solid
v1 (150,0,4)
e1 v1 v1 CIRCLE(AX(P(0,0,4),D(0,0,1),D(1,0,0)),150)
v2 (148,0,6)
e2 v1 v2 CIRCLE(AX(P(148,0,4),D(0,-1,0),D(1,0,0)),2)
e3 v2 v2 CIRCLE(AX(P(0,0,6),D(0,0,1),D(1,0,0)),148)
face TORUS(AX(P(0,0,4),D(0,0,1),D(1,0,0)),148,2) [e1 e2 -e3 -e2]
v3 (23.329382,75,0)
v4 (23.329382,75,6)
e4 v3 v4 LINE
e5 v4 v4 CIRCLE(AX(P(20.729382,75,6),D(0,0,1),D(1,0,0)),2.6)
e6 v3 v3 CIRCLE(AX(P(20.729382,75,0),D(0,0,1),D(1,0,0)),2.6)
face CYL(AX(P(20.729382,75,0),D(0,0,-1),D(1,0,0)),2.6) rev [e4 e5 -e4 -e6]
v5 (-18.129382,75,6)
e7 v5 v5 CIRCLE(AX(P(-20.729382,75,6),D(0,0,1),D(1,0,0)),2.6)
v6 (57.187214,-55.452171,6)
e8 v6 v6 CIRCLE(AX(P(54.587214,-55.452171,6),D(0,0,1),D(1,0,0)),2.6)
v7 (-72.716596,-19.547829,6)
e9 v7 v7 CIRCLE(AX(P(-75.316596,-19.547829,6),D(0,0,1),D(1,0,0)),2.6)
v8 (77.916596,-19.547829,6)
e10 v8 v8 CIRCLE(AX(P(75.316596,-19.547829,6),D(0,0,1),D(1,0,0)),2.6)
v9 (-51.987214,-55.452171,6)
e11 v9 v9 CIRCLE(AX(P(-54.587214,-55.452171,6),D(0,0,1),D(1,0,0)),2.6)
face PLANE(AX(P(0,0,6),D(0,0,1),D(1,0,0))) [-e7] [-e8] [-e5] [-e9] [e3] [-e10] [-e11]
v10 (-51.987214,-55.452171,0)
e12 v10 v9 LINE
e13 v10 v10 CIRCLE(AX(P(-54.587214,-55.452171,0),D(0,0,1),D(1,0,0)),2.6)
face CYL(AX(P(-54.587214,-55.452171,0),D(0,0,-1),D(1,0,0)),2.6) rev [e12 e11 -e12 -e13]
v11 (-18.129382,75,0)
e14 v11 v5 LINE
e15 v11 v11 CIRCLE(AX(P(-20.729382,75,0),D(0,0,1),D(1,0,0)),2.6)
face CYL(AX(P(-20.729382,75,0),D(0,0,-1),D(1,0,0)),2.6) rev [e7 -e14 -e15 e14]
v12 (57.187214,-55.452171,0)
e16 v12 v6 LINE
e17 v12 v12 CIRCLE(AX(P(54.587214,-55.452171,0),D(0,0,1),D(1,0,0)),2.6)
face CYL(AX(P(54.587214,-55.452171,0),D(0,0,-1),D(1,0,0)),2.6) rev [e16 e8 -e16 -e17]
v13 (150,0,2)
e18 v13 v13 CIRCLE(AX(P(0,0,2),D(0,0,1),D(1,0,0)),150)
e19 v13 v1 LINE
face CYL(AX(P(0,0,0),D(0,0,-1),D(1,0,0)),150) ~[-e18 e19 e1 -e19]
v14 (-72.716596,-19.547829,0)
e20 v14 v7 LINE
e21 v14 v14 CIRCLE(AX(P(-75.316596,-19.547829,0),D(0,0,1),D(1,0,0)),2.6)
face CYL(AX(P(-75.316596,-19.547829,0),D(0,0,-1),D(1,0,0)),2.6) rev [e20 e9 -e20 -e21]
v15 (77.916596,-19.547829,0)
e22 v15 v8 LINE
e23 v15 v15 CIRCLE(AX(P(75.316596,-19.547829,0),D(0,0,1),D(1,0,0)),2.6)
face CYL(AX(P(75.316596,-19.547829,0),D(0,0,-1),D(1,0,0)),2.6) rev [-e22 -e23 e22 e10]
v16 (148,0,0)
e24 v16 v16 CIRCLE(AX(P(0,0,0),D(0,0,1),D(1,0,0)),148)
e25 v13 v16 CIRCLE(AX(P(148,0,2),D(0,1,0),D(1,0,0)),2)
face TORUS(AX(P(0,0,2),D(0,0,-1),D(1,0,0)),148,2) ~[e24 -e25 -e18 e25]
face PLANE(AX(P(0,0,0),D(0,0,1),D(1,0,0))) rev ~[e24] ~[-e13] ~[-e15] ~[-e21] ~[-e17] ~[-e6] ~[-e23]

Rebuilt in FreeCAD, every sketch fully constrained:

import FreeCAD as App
import Part
import Sketcher

V = App.Vector


def edges_at(feature, points):
    """Names of the edges that pass closest to the given points."""
    edges = feature.Shape.Edges
    near = lambda p: min(range(len(edges)), key=lambda i: edges[i].distToShape(Part.Vertex(*p))[0])
    return sorted({f"Edge{near(p) + 1}" for p in points})

doc = App.newDocument("Part")
body = doc.addObject("PartDesign::Body", "Body")

sketch1 = body.newObject("Sketcher::SketchObject", "Sketch")
sketch1.AttachmentSupport = (doc.getObject("XY_Plane"), [""])
sketch1.MapMode = "FlatFace"
sketch1.addGeometry([
    Part.Circle(V(0, 0, 0), V(0, 0, 1), 150),
    Part.Circle(V(-54.6, -55.5, 0), V(0, 0, 1), 2.6),
    Part.Circle(V(-75.3, -19.5, 0), V(0, 0, 1), 2.6),
    Part.Circle(V(54.6, -55.5, 0), V(0, 0, 1), 2.6),
    Part.Circle(V(75.3, -19.5, 0), V(0, 0, 1), 2.6),
    Part.Circle(V(-20.7, 75, 0), V(0, 0, 1), 2.6),
    Part.Circle(V(20.7, 75, 0), V(0, 0, 1), 2.6),
], False)
sketch1.addConstraint([
    Sketcher.Constraint("Coincident", 0, 3, -1, 1),
    Sketcher.Constraint("Equal", 1, 2),
    Sketcher.Constraint("Equal", 2, 3),
    Sketcher.Constraint("Equal", 3, 4),
    Sketcher.Constraint("Equal", 4, 5),
    Sketcher.Constraint("Equal", 5, 6),
    Sketcher.Constraint("Symmetric", 1, 3, 3, 3, -2),
    Sketcher.Constraint("Symmetric", 2, 3, 4, 3, -2),
    Sketcher.Constraint("Symmetric", 5, 3, 6, 3, -2),
    Sketcher.Constraint("Diameter", 0, 300.0),
    Sketcher.Constraint("Diameter", 1, 5.2),
    Sketcher.Constraint("DistanceY", -1, 1, 5, 3, 75.0),
    Sketcher.Constraint("DistanceY", 1, 3, -1, 1, 55.452171),
    Sketcher.Constraint("DistanceY", 2, 3, -1, 1, 19.547829),
    Sketcher.Constraint("DistanceX", 1, 3, 3, 3, 109.174429),
    Sketcher.Constraint("DistanceX", 2, 3, 3, 3, 129.903811),
    Sketcher.Constraint("DistanceX", 5, 3, 4, 3, 96.045978),
])
pad1 = body.newObject("PartDesign::Pad", "Pad")
pad1.Profile = sketch1
pad1.Length = 6
doc.recompute()

fillet = body.newObject("PartDesign::Fillet", "Fillet")
fillet.Base = (pad1, edges_at(pad1, [(-150, 0, 6), (-150, 0, 0)]))
fillet.Radius = 2

doc.recompute()
